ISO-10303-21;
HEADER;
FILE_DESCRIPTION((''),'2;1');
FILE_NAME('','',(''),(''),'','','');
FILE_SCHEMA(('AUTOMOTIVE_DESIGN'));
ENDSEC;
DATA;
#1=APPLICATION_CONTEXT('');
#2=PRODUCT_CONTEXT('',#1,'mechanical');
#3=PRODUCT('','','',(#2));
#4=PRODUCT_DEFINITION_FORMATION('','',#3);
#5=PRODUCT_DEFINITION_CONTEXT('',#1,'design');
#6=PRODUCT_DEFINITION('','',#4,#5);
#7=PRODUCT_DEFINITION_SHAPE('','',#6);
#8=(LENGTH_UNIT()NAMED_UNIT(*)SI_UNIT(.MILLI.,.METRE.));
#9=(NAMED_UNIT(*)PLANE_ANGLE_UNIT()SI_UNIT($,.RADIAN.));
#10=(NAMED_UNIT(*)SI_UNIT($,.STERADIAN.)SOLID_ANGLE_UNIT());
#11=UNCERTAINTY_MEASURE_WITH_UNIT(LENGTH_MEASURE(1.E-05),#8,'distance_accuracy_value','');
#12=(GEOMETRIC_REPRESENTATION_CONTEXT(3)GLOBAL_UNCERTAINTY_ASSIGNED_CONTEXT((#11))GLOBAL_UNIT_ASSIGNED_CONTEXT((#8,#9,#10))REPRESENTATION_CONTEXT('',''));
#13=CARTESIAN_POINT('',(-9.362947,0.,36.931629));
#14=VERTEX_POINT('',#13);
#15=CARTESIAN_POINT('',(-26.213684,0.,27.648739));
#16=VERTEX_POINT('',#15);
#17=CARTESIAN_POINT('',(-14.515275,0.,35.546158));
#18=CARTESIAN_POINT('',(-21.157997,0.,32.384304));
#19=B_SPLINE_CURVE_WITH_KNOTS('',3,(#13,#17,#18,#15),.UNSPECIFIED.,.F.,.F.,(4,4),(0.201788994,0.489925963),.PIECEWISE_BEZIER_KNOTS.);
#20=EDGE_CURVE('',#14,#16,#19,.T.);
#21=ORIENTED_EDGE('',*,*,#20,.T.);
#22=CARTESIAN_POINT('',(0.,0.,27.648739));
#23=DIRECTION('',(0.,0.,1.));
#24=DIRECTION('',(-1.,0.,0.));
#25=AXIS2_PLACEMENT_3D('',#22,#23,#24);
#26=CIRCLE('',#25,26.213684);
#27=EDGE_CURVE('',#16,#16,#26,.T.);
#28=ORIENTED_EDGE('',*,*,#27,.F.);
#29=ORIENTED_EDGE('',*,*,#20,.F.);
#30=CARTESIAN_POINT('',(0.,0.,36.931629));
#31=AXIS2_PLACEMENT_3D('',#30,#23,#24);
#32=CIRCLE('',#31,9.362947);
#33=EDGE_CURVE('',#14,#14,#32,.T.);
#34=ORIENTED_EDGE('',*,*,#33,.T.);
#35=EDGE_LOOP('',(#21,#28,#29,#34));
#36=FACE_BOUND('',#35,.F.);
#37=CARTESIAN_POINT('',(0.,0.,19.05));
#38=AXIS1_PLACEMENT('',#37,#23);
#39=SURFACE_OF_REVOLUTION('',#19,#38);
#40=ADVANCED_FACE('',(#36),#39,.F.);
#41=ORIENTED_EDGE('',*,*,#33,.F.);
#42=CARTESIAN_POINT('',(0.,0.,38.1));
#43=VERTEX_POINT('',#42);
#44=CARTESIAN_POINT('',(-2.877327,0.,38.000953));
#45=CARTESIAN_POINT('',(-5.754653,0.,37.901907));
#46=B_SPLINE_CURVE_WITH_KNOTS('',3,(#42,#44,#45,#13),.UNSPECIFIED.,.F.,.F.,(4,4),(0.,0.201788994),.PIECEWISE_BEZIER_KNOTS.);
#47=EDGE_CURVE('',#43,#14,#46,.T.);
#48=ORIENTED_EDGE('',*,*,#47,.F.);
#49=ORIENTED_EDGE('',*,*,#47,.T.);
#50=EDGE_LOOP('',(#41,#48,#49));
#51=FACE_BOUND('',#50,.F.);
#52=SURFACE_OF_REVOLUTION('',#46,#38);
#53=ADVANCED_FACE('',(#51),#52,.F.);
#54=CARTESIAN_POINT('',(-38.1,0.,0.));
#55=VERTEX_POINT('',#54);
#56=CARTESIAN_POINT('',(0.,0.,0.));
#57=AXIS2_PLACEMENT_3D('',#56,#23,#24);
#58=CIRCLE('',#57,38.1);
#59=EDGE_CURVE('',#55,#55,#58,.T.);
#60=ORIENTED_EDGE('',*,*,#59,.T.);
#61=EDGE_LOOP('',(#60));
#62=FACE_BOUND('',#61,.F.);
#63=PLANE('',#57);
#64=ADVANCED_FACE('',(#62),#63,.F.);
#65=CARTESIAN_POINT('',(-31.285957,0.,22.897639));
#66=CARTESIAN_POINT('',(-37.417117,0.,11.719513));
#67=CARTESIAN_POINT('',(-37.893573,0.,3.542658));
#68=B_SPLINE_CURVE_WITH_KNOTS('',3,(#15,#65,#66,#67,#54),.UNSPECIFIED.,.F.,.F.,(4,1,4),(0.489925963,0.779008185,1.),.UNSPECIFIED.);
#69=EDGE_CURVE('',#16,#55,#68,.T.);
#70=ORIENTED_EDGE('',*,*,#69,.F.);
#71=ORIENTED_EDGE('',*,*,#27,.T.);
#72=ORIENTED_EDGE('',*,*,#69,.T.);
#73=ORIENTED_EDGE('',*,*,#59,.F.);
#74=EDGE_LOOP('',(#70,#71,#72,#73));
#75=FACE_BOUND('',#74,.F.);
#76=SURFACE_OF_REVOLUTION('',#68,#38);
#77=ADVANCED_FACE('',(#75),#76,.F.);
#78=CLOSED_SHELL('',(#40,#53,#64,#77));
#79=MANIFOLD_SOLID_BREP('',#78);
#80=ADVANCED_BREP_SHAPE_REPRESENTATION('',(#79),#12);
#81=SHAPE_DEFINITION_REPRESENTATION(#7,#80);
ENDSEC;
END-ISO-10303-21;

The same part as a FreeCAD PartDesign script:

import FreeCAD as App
import Part
import Sketcher
from FreeCAD import Vector

doc = App.newDocument("Part")
body = doc.addObject("PartDesign::Body", "Body")

# Sketch on XZ plane
sketch1 = body.newObject("Sketcher::SketchObject", "Sketch")
sketch1.AttachmentSupport = (doc.getObject("XZ_Plane"), [""])
sketch1.MapMode = "FlatFace"
sketch1.addGeometry([
    Part.LineSegment(Vector(0, 0, 0), Vector(0, 38.1, 0)),  # 0
    Part.BSplineCurve([Vector(0, 38.1, 0), Vector(-2.877327, 38.000953, 0), Vector(-5.754653, 37.901907, 0), Vector(-9.362947, 36.931629, 0)], [4, 4], [0, 0.201788994], False, 3, [1, 1, 1, 1], False),  # 1
    Part.BSplineCurve([Vector(-9.362947, 36.931629, 0), Vector(-14.515275, 35.546158, 0), Vector(-21.157997, 32.384304, 0), Vector(-26.213684, 27.648739, 0)], [4, 4], [0.201788994, 0.489925963], False, 3, [1, 1, 1, 1], False),  # 2
    Part.BSplineCurve([Vector(-26.213684, 27.648739, 0), Vector(-31.285957, 22.897639, 0), Vector(-37.417117, 11.719513, 0), Vector(-37.893573, 3.542658, 0), Vector(-38.1, 0, 0)], [4, 1, 4], [0.489925963, 0.779008185, 1], False, 3, [1, 1, 1, 1, 1], False),  # 3
    Part.LineSegment(Vector(-38.1, 0, 0), Vector(0, 0, 0)),  # 4
], False)
sketch1.addConstraint([
    Sketcher.Constraint("Block", 1),
    Sketcher.Constraint("Block", 2),
    Sketcher.Constraint("Block", 3),
    Sketcher.Constraint("Coincident", 0, 2, 1, 1),
    Sketcher.Constraint("Coincident", 3, 2, 4, 1),
    Sketcher.Constraint("Coincident", 4, 2, 0, 1),
    Sketcher.Constraint("Vertical", 0),
    Sketcher.Constraint("Horizontal", 4),
])
revolution = body.newObject("PartDesign::Revolution", "Revolution")
revolution.Profile = sketch1
revolution.ReferenceAxis = (sketch1, ["V_Axis"])
revolution.Angle = 360

doc.recompute()
